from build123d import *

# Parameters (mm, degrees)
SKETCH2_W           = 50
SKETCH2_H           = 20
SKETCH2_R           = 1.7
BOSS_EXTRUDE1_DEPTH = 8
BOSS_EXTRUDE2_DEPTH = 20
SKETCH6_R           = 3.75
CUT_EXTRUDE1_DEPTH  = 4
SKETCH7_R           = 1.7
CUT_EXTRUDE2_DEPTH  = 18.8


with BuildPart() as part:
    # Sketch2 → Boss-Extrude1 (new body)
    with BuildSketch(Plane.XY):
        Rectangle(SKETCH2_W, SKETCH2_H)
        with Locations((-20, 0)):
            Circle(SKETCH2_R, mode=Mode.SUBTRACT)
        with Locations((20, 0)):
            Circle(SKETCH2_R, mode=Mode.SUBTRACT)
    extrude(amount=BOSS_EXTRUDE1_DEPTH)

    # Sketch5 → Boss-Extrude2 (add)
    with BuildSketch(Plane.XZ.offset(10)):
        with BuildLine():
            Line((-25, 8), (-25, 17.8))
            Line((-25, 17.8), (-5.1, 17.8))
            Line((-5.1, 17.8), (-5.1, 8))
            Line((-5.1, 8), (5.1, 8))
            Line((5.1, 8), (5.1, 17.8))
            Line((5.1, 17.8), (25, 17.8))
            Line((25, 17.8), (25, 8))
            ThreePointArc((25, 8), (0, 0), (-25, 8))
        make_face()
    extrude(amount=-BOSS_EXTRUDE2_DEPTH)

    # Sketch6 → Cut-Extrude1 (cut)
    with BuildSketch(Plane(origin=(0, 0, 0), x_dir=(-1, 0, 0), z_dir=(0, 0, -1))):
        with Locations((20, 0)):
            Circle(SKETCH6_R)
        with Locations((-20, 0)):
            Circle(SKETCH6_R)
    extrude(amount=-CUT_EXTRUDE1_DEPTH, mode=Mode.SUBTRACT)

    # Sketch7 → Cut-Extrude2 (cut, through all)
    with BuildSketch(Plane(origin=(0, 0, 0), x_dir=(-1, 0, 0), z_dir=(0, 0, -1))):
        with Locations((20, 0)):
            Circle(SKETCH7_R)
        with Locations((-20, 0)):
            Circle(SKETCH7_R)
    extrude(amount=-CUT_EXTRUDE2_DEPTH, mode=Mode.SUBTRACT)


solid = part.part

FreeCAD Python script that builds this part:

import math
import FreeCAD as App
import Part
import Sketcher


def add_polygon(sketch, points):
    """Adds a closed chain of lines whose ends are joined by coincident constraints."""
    first, n = sketch.GeometryCount, len(points)
    for a, b in zip(points, points[1:] + points[:1]):
        sketch.addGeometry(Part.LineSegment(App.Vector(*a, 0), App.Vector(*b, 0)), False)
    for i in range(n):
        sketch.addConstraint(Sketcher.Constraint("Coincident", first + i, 2, first + (i + 1) % n, 1))

doc = App.newDocument("Part")
body = doc.addObject("PartDesign::Body", "Body")

sketch1 = body.newObject("Sketcher::SketchObject", "Sketch")
sketch1.AttachmentSupport = (doc.getObject("XY_Plane"), [""])
sketch1.MapMode = "FlatFace"
add_polygon(sketch1, [(-25, 10), (-25, -10), (25, -10), (25, 10)])
sketch1.addGeometry(Part.Circle(App.Vector(-20, 0, 0), App.Vector(0, 0, 1), 1.7), False)
sketch1.addGeometry(Part.Circle(App.Vector(20, 0, 0), App.Vector(0, 0, 1), 1.7), False)
sketch1.addConstraint([
    Sketcher.Constraint("Vertical", 0),
    Sketcher.Constraint("Horizontal", 1),
    Sketcher.Constraint("Vertical", 2),
    Sketcher.Constraint("Horizontal", 3),
    Sketcher.Constraint("Equal", 4, 5),
    Sketcher.Constraint("Symmetric", 4, 3, 5, 3, -1, 1),
    Sketcher.Constraint("Symmetric", 0, 2, 2, 2, -1, 1),
    Sketcher.Constraint("PointOnObject", 4, 3, -1),
    Sketcher.Constraint("Diameter", 4, 3.4),
    Sketcher.Constraint("DistanceX", 1, 1, 1, 2, 50.0),
    Sketcher.Constraint("DistanceY", 0, 2, 0, 1, 20.0),
    Sketcher.Constraint("DistanceX", 4, 3, -1, 1, 20.0),
])
pad1 = body.newObject("PartDesign::Pad", "Pad")
pad1.Profile = sketch1
pad1.Length = 8

sketch2 = body.newObject("Sketcher::SketchObject", "Sketch001")
sketch2.AttachmentSupport = (doc.getObject("XZ_Plane"), [""])
sketch2.MapMode = "FlatFace"
sketch2.AttachmentOffset = App.Placement(App.Vector(0, 0, 10), App.Rotation())
sketch2.addGeometry([
    Part.LineSegment(App.Vector(-25, 18, 0), App.Vector(-25, 8, 0)),
    Part.ArcOfCircle(Part.Circle(App.Vector(0, 43, 0), App.Vector(0, 0, 1), 43), math.radians(-125), math.radians(-55)),
    Part.LineSegment(App.Vector(25, 8, 0), App.Vector(25, 18, 0)),
    Part.LineSegment(App.Vector(25, 18, 0), App.Vector(5, 18, 0)),
    Part.LineSegment(App.Vector(5, 18, 0), App.Vector(5, 8, 0)),
    Part.LineSegment(App.Vector(5, 8, 0), App.Vector(-5, 8, 0)),
    Part.LineSegment(App.Vector(-5, 8, 0), App.Vector(-5, 18, 0)),
    Part.LineSegment(App.Vector(-5, 18, 0), App.Vector(-25, 18, 0)),
], False)
sketch2.addConstraint([
    Sketcher.Constraint("Coincident", 0, 2, 1, 1),
    Sketcher.Constraint("Coincident", 1, 2, 2, 1),
    Sketcher.Constraint("Coincident", 2, 2, 3, 1),
    Sketcher.Constraint("Coincident", 3, 2, 4, 1),
    Sketcher.Constraint("Coincident", 4, 2, 5, 1),
    Sketcher.Constraint("Coincident", 5, 2, 6, 1),
    Sketcher.Constraint("Coincident", 6, 2, 7, 1),
    Sketcher.Constraint("Coincident", 7, 2, 0, 1),
    Sketcher.Constraint("Vertical", 0),
    Sketcher.Constraint("Vertical", 2),
    Sketcher.Constraint("Horizontal", 3),
    Sketcher.Constraint("Vertical", 4),
    Sketcher.Constraint("Horizontal", 5),
    Sketcher.Constraint("Vertical", 6),
    Sketcher.Constraint("Horizontal", 7),
    Sketcher.Constraint("Symmetric", 0, 2, 1, 2, -2),
    Sketcher.Constraint("Symmetric", 3, 2, 6, 2, -2),
    Sketcher.Constraint("Horizontal", 1, 2, 4, 2),
    Sketcher.Constraint("DistanceX", 3, 2, 3, 1, 19.9),
    Sketcher.Constraint("DistanceX", 5, 2, 5, 1, 10.2),
    Sketcher.Constraint("DistanceY", 0, 2, 0, 1, 9.8),
    Sketcher.Constraint("DistanceY", -1, 1, 0, 2, 8.0),
    Sketcher.Constraint("Radius", 1, 43.0625),
])
pad2 = body.newObject("PartDesign::Pad", "Pad001")
pad2.Profile = sketch2
pad2.Length = 20
pad2.Reversed = True

sketch3 = body.newObject("Sketcher::SketchObject", "Sketch002")
sketch3.AttachmentSupport = (doc.getObject("XY_Plane"), [""])
sketch3.MapMode = "FlatFace"
sketch3.addGeometry([
    Part.Circle(App.Vector(-20, 0, 0), App.Vector(0, 0, 1), 3.8),
    Part.Circle(App.Vector(20, 0, 0), App.Vector(0, 0, 1), 3.8),
], False)
sketch3.addConstraint([
    Sketcher.Constraint("Equal", 0, 1),
    Sketcher.Constraint("Symmetric", 0, 3, 1, 3, -1, 1),
    Sketcher.Constraint("PointOnObject", 0, 3, -1),
    Sketcher.Constraint("Diameter", 0, 7.5),
    Sketcher.Constraint("DistanceX", 0, 3, -1, 1, 20.0),
])
pocket1 = body.newObject("PartDesign::Pocket", "Pocket")
pocket1.Profile = sketch3
pocket1.Length = 4
pocket1.Reversed = True

sketch4 = body.newObject("Sketcher::SketchObject", "Sketch003")
sketch4.AttachmentSupport = (doc.getObject("XY_Plane"), [""])
sketch4.MapMode = "FlatFace"
sketch4.addGeometry([
    Part.Circle(App.Vector(-20, 0, 0), App.Vector(0, 0, 1), 1.7),
    Part.Circle(App.Vector(20, 0, 0), App.Vector(0, 0, 1), 1.7),
], False)
sketch4.addConstraint([
    Sketcher.Constraint("Equal", 0, 1),
    Sketcher.Constraint("Symmetric", 0, 3, 1, 3, -1, 1),
    Sketcher.Constraint("PointOnObject", 0, 3, -1),
    Sketcher.Constraint("Diameter", 0, 3.4),
    Sketcher.Constraint("DistanceX", 0, 3, -1, 1, 20.0),
])
pocket2 = body.newObject("PartDesign::Pocket", "Pocket001")
pocket2.Profile = sketch4
pocket2.Type = "ThroughAll"
pocket2.Reversed = True

doc.recompute()
